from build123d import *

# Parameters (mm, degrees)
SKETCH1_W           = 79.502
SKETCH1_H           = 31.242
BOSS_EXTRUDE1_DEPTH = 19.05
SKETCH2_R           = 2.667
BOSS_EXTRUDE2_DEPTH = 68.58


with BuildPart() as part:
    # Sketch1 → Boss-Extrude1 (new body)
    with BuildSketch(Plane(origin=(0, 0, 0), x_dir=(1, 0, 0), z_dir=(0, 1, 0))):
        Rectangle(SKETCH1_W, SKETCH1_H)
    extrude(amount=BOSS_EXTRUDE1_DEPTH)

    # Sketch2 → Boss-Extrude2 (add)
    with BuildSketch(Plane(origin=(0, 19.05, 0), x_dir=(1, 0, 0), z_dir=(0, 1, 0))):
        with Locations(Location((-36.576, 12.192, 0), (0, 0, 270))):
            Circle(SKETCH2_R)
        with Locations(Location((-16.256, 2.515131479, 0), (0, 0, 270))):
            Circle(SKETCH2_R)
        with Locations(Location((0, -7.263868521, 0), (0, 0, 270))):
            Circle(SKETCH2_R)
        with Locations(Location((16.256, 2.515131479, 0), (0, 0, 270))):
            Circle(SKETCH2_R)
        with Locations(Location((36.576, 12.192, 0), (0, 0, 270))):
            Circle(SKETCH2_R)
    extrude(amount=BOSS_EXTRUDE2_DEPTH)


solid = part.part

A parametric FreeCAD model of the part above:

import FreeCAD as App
import Part
import Sketcher

V = App.Vector
Q = App.Units.Quantity

doc = App.newDocument("Part")
body = doc.addObject("PartDesign::Body", "Body")

# Sketch on XZ plane
sketch1 = body.newObject("Sketcher::SketchObject", "Sketch")
sketch1.AttachmentSupport = (doc.getObject("XZ_Plane"), [""])
sketch1.MapMode = "FlatFace"
sketch1.addGeometry(Part.LineSegment(V(-39.751, -15.621, 0), V(-39.751, 15.621, 0)), False)
sketch1.addGeometry(Part.LineSegment(V(-39.751, 15.621, 0), V(39.751, 15.621, 0)), False)
sketch1.addGeometry(Part.LineSegment(V(39.751, 15.621, 0), V(39.751, -15.621, 0)), False)
sketch1.addGeometry(Part.LineSegment(V(39.751, -15.621, 0), V(-39.751, -15.621, 0)), False)
sketch1.addConstraint(Sketcher.Constraint("Coincident", 0, 2, 1, 1))
sketch1.addConstraint(Sketcher.Constraint("Coincident", 1, 2, 2, 1))
sketch1.addConstraint(Sketcher.Constraint("Coincident", 2, 2, 3, 1))
sketch1.addConstraint(Sketcher.Constraint("Coincident", 3, 2, 0, 1))
sketch1.addConstraint(Sketcher.Constraint("Vertical", 0))
sketch1.addConstraint(Sketcher.Constraint("Horizontal", 1))
sketch1.addConstraint(Sketcher.Constraint("Vertical", 2))
sketch1.addConstraint(Sketcher.Constraint("Horizontal", 3))
sketch1.addConstraint(Sketcher.Constraint("Symmetric", 0, 2, 2, 2, -1, 1))
sketch1.addConstraint(Sketcher.Constraint("DistanceX", 1, 1, 1, 2, Q("3.13 in")))
sketch1.addConstraint(Sketcher.Constraint("DistanceY", 0, 1, 0, 2, Q("1.23 in")))
pad1 = body.newObject("PartDesign::Pad", "Pad")
pad1.Profile = sketch1
pad1.Length = Q("0.75 in")
pad1.Reversed = True

# Sketch on XZ plane
sketch2 = body.newObject("Sketcher::SketchObject", "Sketch001")
sketch2.AttachmentSupport = (doc.getObject("XZ_Plane"), [""])
sketch2.MapMode = "FlatFace"
sketch2.AttachmentOffset = App.Placement(V(0, 0, -0.75 * 25.4), App.Rotation())
sketch2.addGeometry(Part.Circle(V(-36.576, -12.192, 0), V(0, 0, 1), 2.667), False)
sketch2.addGeometry(Part.Circle(V(-16.256, -2.515131, 0), V(0, 0, 1), 2.667), False)
sketch2.addGeometry(Part.Circle(V(0, 7.263869, 0), V(0, 0, 1), 2.667), False)
sketch2.addGeometry(Part.Circle(V(16.256, -2.515131, 0), V(0, 0, 1), 2.667), False)
sketch2.addGeometry(Part.Circle(V(36.576, -12.192, 0), V(0, 0, 1), 2.667), False)
sketch2.addConstraint(Sketcher.Constraint("Equal", 0, 1))
sketch2.addConstraint(Sketcher.Constraint("Equal", 1, 2))
sketch2.addConstraint(Sketcher.Constraint("Equal", 2, 3))
sketch2.addConstraint(Sketcher.Constraint("Equal", 3, 4))
sketch2.addConstraint(Sketcher.Constraint("Symmetric", 1, 3, 3, 3, -2))
sketch2.addConstraint(Sketcher.Constraint("Symmetric", 0, 3, 4, 3, -2))
sketch2.addConstraint(Sketcher.Constraint("PointOnObject", 2, 3, -2))
sketch2.addConstraint(Sketcher.Constraint("Diameter", 0, Q("0.21 in")))
sketch2.addConstraint(Sketcher.Constraint("DistanceX", 0, 3, 1, 3, Q("0.8 in")))
sketch2.addConstraint(Sketcher.Constraint("DistanceX", 0, 3, -1, 1, Q("1.44 in")))
sketch2.addConstraint(Sketcher.Constraint("DistanceY", 0, 3, -1, 1, Q("0.48 in")))
sketch2.addConstraint(Sketcher.Constraint("DistanceY", 1, 3, 2, 3, Q("0.385 in")))
sketch2.addConstraint(Sketcher.Constraint("DistanceY", 1, 3, -1, 1, 2.515131))
pad2 = body.newObject("PartDesign::Pad", "Pad001")
pad2.Profile = sketch2
pad2.Length = Q("2.7 in")
pad2.Reversed = True

doc.recompute()
